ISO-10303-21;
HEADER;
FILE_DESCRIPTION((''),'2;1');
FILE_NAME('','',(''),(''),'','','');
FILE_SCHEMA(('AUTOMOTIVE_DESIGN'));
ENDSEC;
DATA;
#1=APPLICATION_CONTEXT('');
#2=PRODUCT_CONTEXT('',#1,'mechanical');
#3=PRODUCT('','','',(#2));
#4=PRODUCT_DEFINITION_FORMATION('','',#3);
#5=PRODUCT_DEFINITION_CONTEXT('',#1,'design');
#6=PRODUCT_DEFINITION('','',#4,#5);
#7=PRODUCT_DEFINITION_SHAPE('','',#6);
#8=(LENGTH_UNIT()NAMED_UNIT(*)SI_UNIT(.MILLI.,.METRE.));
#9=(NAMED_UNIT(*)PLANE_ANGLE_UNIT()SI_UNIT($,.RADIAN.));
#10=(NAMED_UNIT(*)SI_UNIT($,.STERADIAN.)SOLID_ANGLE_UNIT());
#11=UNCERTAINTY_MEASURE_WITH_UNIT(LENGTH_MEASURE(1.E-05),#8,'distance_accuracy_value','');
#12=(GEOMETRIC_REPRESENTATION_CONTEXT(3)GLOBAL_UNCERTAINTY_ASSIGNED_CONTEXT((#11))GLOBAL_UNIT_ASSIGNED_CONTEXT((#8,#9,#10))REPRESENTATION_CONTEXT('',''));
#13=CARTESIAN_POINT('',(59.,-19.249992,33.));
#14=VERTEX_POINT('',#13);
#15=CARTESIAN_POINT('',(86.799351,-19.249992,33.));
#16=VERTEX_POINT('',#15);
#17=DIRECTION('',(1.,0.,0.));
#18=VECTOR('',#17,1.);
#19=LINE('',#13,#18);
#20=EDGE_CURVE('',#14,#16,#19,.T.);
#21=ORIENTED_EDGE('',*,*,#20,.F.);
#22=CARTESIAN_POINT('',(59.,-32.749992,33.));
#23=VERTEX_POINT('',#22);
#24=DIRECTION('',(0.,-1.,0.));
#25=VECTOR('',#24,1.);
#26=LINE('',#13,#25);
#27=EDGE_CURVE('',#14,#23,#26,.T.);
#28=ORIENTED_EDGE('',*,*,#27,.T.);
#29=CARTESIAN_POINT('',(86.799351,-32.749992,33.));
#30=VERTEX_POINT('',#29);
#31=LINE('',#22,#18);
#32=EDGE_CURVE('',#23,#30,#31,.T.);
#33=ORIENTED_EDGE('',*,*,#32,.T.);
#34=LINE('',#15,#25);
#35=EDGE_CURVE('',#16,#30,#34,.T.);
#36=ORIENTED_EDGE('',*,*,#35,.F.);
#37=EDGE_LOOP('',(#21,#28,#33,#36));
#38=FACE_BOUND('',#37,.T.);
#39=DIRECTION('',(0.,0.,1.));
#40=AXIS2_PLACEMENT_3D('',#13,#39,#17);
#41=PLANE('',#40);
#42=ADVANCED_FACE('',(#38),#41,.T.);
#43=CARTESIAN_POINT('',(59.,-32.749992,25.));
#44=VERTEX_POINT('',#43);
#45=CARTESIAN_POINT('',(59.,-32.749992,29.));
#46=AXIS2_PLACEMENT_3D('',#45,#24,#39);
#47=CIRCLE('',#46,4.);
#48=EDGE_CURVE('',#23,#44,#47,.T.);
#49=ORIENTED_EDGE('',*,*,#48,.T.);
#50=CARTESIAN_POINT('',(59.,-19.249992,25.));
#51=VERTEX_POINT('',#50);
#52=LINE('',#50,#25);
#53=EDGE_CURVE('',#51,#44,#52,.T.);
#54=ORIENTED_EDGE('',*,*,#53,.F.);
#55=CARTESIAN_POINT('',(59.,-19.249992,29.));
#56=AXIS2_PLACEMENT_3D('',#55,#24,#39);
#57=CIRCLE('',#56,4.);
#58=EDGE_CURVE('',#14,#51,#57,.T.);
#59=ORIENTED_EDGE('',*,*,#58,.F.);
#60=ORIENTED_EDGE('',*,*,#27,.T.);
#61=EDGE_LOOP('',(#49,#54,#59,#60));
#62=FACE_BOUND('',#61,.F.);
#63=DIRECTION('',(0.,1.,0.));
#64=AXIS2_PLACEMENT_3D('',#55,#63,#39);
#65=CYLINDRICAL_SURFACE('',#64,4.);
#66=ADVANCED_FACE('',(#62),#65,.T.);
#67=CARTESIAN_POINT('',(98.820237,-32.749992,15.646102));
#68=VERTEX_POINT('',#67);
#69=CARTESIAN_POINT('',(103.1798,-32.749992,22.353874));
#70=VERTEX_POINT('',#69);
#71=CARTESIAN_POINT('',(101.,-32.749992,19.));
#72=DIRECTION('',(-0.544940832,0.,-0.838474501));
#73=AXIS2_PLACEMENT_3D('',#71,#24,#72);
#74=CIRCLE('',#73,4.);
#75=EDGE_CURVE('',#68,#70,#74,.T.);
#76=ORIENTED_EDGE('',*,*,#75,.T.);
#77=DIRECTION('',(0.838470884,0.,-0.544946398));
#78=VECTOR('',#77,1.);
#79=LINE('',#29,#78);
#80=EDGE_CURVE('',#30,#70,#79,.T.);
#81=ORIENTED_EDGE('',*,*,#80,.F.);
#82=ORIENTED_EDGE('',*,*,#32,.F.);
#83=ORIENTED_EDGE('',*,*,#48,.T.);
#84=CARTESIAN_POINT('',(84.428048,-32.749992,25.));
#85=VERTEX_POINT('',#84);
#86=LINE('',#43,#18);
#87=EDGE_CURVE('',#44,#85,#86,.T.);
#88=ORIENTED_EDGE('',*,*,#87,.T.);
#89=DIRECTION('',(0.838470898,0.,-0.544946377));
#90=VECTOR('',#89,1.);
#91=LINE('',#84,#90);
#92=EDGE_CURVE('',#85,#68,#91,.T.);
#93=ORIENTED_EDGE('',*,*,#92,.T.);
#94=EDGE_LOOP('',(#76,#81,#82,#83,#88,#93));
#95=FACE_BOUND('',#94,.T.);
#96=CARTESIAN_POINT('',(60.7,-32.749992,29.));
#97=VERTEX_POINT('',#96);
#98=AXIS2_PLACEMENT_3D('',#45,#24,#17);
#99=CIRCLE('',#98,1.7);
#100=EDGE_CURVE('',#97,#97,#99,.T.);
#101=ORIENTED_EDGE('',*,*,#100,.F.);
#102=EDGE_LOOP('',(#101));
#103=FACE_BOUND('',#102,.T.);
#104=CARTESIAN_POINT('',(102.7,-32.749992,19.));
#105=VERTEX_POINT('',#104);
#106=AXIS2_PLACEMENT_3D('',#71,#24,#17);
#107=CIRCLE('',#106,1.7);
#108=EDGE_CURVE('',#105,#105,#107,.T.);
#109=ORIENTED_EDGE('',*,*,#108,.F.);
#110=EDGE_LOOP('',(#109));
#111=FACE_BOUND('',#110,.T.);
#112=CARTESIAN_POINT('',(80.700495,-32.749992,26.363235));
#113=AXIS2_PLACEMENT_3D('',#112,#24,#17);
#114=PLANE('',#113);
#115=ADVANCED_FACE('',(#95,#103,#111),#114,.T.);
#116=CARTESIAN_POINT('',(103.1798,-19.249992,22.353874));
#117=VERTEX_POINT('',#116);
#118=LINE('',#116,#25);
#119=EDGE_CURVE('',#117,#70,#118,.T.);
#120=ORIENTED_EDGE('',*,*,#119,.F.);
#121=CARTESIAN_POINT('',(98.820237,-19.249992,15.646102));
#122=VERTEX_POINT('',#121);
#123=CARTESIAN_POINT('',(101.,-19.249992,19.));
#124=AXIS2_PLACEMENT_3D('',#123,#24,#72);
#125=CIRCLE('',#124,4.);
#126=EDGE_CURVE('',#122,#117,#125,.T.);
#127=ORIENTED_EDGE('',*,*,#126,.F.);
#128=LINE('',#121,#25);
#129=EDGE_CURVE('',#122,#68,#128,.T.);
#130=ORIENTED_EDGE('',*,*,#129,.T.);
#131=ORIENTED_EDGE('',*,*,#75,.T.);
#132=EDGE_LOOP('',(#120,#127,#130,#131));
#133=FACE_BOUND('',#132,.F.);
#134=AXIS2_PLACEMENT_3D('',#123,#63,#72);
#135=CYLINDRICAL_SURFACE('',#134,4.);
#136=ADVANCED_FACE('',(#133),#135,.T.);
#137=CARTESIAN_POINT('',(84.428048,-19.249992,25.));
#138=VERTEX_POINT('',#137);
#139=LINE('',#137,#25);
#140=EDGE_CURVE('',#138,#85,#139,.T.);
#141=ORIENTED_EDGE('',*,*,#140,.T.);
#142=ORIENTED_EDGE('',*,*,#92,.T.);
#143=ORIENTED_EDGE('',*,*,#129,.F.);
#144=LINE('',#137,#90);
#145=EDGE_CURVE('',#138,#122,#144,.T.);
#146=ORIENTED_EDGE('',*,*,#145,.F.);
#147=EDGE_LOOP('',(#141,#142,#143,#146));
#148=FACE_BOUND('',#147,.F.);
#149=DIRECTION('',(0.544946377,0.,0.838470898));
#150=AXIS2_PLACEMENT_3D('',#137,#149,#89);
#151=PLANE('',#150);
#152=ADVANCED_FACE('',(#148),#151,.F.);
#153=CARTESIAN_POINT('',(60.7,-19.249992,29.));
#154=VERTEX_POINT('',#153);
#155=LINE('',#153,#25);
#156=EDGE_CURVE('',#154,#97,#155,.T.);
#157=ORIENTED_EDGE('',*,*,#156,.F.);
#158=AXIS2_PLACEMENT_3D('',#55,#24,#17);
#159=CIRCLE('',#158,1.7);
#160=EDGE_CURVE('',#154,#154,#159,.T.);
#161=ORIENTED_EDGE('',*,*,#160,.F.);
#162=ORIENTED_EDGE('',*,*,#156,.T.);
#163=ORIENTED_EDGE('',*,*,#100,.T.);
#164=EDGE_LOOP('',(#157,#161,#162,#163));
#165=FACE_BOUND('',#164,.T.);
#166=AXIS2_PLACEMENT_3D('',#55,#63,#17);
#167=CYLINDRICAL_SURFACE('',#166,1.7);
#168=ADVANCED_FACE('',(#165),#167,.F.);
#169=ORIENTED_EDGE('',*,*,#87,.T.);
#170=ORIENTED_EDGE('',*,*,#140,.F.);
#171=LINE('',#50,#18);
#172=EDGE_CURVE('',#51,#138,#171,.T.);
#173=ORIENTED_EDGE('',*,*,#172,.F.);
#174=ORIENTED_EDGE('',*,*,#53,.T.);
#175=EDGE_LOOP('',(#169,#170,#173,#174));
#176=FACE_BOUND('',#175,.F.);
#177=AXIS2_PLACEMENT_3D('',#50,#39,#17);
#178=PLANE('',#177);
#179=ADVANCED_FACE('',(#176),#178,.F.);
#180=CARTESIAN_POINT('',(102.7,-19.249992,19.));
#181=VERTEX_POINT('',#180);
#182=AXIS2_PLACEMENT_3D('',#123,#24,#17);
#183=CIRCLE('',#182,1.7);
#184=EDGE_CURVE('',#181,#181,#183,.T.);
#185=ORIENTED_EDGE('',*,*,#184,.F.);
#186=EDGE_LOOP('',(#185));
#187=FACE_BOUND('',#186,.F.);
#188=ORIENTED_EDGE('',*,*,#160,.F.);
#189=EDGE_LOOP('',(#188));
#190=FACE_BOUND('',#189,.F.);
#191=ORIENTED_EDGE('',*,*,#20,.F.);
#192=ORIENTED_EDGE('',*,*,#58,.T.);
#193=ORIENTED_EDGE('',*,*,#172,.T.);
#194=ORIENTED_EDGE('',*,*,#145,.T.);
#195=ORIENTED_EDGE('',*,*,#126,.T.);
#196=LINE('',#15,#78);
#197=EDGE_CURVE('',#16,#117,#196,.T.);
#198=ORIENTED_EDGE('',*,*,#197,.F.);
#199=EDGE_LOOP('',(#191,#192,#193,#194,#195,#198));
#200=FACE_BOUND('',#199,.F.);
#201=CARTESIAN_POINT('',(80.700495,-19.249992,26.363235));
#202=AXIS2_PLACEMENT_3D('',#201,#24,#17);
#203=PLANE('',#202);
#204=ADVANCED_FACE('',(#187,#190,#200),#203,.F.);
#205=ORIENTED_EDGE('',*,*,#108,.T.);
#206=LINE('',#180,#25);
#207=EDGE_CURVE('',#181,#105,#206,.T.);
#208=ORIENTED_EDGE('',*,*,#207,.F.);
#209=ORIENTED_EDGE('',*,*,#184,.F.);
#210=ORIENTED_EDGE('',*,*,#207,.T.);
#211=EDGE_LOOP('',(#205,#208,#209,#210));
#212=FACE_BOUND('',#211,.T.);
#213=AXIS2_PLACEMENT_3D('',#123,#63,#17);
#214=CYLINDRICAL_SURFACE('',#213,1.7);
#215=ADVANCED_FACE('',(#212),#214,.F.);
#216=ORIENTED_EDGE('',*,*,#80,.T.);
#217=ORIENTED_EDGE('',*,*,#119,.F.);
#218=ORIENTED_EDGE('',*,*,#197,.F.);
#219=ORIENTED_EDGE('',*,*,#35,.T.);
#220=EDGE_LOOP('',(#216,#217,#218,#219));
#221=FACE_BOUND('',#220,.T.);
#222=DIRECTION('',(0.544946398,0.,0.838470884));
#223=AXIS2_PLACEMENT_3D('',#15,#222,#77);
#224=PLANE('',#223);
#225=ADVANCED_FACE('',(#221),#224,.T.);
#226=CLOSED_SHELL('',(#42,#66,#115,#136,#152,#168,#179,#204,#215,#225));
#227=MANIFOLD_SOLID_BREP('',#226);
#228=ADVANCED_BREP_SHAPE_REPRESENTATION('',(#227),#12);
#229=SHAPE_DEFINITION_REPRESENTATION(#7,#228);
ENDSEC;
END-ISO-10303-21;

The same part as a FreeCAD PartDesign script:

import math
import FreeCAD as App
import Part
import Sketcher
from FreeCAD import Vector

doc = App.newDocument("Part")
params = doc.addObject("Spreadsheet::Sheet", "Params")
for row, (alias, value) in enumerate([
    ("sketch1_radius", "4 mm"),
    ("sketch1_diameter", "3.4 mm"),
    ("pad1_length", "13.5 mm"),
], start=1):
    params.set(f"A{row}", alias)
    params.set(f"B{row}", "=" + value)
    params.setAlias(f"B{row}", alias)

body = doc.addObject("PartDesign::Body", "Body")

sketch1 = body.newObject("Sketcher::SketchObject", "Sketch")
sketch1.AttachmentSupport = (doc.getObject("XZ_Plane"), [""])
sketch1.MapMode = "FlatFace"
sketch1.AttachmentOffset = App.Placement(Vector(0, 0, -19.25), App.Rotation())
sketch1.addGeometry(Part.ArcOfCircle(Part.Circle(Vector(-59, 29, 0), Vector(0, 0, 1), 4), math.radians(-90), math.radians(90)), False)
sketch1.addGeometry(Part.LineSegment(Vector(-59, 25, 0), Vector(-84.4, 25, 0)), False)
sketch1.addGeometry(Part.LineSegment(Vector(-84.4, 25, 0), Vector(-98.8, 15.6, 0)), False)
sketch1.addGeometry(Part.ArcOfCircle(Part.Circle(Vector(-101, 19, 0), Vector(0, 0, 1), 4), math.radians(123), math.radians(303)), False)
sketch1.addGeometry(Part.LineSegment(Vector(-103.2, 22.4, 0), Vector(-86.8, 33, 0)), False)
sketch1.addGeometry(Part.LineSegment(Vector(-86.8, 33, 0), Vector(-59, 33, 0)), False)
sketch1.addGeometry(Part.Circle(Vector(-101, 19, 0), Vector(0, 0, 1), 1.7), False)
sketch1.addGeometry(Part.Circle(Vector(-59, 29, 0), Vector(0, 0, 1), 1.7), False)
sketch1.addConstraint(Sketcher.Constraint("Tangent", 0, 1, 1, 1))
sketch1.addConstraint(Sketcher.Constraint("Coincident", 1, 2, 2, 1))
sketch1.addConstraint(Sketcher.Constraint("Coincident", 2, 2, 3, 2))
sketch1.addConstraint(Sketcher.Constraint("Coincident", 3, 1, 4, 1))
sketch1.addConstraint(Sketcher.Constraint("Coincident", 4, 2, 5, 1))
sketch1.addConstraint(Sketcher.Constraint("Tangent", 5, 2, 0, 2))
sketch1.addConstraint(Sketcher.Constraint("Horizontal", 1))
sketch1.addConstraint(Sketcher.Constraint("Horizontal", 5))
sketch1.addConstraint(Sketcher.Constraint("Coincident", 6, 3, 3, 3))
sketch1.addConstraint(Sketcher.Constraint("Coincident", 7, 3, 0, 3))
sketch1.addConstraint(Sketcher.Constraint("Equal", 0, 3))
sketch1.addConstraint(Sketcher.Constraint("Equal", 6, 7))
sketch1.addConstraint(Sketcher.Constraint("Parallel", 2, 4))
sketch1.addConstraint(Sketcher.Constraint("Radius", 0, 4.0))
sketch1.addConstraint(Sketcher.Constraint("Diameter", 6, 3.4))
sketch1.addConstraint(Sketcher.Constraint("DistanceX", 0, 3, -1, 1, 59.0))
sketch1.addConstraint(Sketcher.Constraint("DistanceY", -1, 1, 0, 3, 29.0))
sketch1.addConstraint(Sketcher.Constraint("DistanceX", 3, 3, -1, 1, 101.0))
sketch1.addConstraint(Sketcher.Constraint("DistanceY", -1, 1, 3, 3, 19.0))
sketch1.addConstraint(Sketcher.Constraint("DistanceX", 1, 2, 1, 1, 25.428048))
sketch1.addConstraint(Sketcher.Constraint("DistanceX", 3, 1, -1, 1, 103.1798))
sketch1.addConstraint(Sketcher.Constraint("DistanceY", 2, 2, 4, 2, 17.353898))
sketch1.setExpression("Constraints[13]", "Params.sketch1_radius")
sketch1.setExpression("Constraints[14]", "Params.sketch1_diameter")
pad1 = body.newObject("PartDesign::Pad", "Pad")
pad1.Profile = sketch1
pad1.setExpression("Length", "Params.pad1_length")
pad1.Reversed = True
body2 = doc.addObject("PartDesign::Body", "Body001")
doc.recompute()

mirroring = doc.addObject("Part::Mirroring", "Mirroring")
mirroring.Source = body
mirroring.Base = Vector(0, 0, 0)
mirroring.Normal = Vector(1, 0, 0)
body2.BaseFeature = mirroring
doc.recompute()
body3 = doc.addObject("PartDesign::Body", "Body002")
doc.recompute()

mirroring2 = doc.addObject("Part::Mirroring", "Mirroring001")
mirroring2.Source = body2
mirroring2.Base = Vector(67.968658, 0.000004, 24.002777)
mirroring2.Normal = Vector(0, 1, 0)
body3.BaseFeature = mirroring2
doc.recompute()
body.Visibility = False
body2.Visibility = False
mirroring.Visibility = False
mirroring2.Visibility = False

doc.recompute()
